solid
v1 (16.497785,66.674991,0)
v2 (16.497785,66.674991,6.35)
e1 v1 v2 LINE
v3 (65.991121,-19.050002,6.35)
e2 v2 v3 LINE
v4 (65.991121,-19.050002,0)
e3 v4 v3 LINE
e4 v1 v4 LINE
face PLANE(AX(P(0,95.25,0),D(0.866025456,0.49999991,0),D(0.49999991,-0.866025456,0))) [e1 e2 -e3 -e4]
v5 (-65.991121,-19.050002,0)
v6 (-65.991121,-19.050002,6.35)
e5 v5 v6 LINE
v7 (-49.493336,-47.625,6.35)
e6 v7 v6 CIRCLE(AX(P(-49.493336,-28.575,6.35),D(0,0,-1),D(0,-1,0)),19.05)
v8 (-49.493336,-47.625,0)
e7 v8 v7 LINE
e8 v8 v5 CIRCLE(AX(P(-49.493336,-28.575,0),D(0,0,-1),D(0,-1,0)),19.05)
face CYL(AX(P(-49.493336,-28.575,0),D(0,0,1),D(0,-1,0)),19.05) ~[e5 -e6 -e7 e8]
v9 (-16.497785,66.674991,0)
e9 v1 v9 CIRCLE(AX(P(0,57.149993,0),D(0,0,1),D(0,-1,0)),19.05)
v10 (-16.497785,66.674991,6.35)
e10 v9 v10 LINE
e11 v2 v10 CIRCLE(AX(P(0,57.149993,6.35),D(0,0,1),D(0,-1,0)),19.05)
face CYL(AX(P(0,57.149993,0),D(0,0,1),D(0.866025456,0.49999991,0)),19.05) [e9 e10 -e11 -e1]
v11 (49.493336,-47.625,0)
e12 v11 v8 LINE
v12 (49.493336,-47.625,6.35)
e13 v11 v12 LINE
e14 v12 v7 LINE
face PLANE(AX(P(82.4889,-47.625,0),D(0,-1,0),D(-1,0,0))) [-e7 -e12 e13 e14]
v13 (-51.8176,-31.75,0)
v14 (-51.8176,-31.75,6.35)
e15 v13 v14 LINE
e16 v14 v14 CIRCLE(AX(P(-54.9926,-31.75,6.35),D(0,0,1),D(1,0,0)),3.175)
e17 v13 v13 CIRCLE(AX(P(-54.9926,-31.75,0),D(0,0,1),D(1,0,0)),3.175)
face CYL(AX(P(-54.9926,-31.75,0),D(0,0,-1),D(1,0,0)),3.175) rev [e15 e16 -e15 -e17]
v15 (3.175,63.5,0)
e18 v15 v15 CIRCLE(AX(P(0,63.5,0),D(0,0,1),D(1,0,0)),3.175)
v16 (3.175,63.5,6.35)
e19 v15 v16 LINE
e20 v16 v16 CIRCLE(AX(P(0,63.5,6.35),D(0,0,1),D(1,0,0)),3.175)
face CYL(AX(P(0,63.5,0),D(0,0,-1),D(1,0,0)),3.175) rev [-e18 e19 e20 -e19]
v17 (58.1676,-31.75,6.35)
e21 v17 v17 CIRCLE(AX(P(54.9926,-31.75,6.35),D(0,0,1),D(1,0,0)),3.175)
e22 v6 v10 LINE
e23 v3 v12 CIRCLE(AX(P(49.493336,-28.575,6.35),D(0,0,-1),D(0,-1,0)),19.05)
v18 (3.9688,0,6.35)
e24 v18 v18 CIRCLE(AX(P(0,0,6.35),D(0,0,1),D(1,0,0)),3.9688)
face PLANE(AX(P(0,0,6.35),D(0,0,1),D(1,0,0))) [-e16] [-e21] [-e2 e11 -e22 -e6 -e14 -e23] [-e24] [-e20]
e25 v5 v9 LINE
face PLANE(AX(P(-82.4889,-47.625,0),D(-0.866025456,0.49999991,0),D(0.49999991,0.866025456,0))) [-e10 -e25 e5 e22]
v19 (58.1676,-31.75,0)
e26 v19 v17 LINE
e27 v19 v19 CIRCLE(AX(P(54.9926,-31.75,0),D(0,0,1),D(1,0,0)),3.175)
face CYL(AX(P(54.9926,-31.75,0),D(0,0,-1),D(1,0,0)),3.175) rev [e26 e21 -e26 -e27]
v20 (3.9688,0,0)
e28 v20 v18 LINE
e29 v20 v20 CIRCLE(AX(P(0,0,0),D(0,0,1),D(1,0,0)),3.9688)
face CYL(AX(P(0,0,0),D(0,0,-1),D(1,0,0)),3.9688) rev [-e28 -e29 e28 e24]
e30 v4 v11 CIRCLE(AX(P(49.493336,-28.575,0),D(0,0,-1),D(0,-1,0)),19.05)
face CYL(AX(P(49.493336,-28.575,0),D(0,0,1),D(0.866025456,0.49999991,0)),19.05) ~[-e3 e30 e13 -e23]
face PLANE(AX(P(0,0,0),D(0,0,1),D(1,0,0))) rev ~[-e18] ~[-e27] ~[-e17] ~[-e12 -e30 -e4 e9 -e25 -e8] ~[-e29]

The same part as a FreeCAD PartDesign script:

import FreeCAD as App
import Part
import Sketcher
from FreeCAD import Vector
Q = App.Units.Quantity


def edges_at(feature, points):
    """Names of the edges that pass closest to the given points."""
    edges = feature.Shape.Edges
    near = lambda p: min(range(len(edges)), key=lambda i: edges[i].distToShape(Part.Vertex(*p))[0])
    return sorted({f"Edge{near(p) + 1}" for p in points})


def add_polygon(sketch, points):
    """Adds a closed chain of lines whose ends are joined by coincident constraints."""
    first, n = sketch.GeometryCount, len(points)
    for a, b in zip(points, points[1:] + points[:1]):
        sketch.addGeometry(Part.LineSegment(App.Vector(*a, 0), App.Vector(*b, 0)), False)
    for i in range(n):
        sketch.addConstraint(Sketcher.Constraint("Coincident", first + i, 2, first + (i + 1) % n, 1))

doc = App.newDocument("Part")
body = doc.addObject("PartDesign::Body", "Body")

sketch1 = doc.addObject("Sketcher::SketchObject", "Sketch")
body.addObject(sketch1)
sketch1.AttachmentSupport = (doc.XY_Plane, [""])
sketch1.MapMode = "FlatFace"
add_polygon(sketch1, [(82.4889, -47.625), (0, 95.25), (-82.4889, -47.625)])
sketch1.addGeometry(Part.Circle(Vector(-54.9926, -31.75, 0), Vector(0, 0, 1), 3.175), False)
sketch1.addGeometry(Part.Circle(Vector(54.9926, -31.75, 0), Vector(0, 0, 1), 3.175), False)
sketch1.addGeometry(Part.Circle(Vector(0, 0, 0), Vector(0, 0, 1), 3.9688), False)
sketch1.addGeometry(Part.Circle(Vector(0, 63.5, 0), Vector(0, 0, 1), 3.175), False)
sketch1.addConstraint(Sketcher.Constraint("Horizontal", 2))
sketch1.addConstraint(Sketcher.Constraint("Coincident", 5, 3, -1, 1))
sketch1.addConstraint(Sketcher.Constraint("Equal", 3, 4))
sketch1.addConstraint(Sketcher.Constraint("Equal", 4, 6))
sketch1.addConstraint(Sketcher.Constraint("Symmetric", 3, 3, 4, 3, -2))
sketch1.addConstraint(Sketcher.Constraint("PointOnObject", 6, 3, -2))
sketch1.addConstraint(Sketcher.Constraint("PointOnObject", 0, 2, -2))
sketch1.addConstraint(Sketcher.Constraint("Equal", 0, 1))
sketch1.addConstraint(Sketcher.Constraint("Diameter", 3, Q("0.25 in")))
sketch1.addConstraint(Sketcher.Constraint("Diameter", 5, Q("0.3125 in")))
sketch1.addConstraint(Sketcher.Constraint("DistanceY", -1, 1, 6, 3, Q("2.5 in")))
sketch1.addConstraint(Sketcher.Constraint("Angle", 0, Q("120 deg")))
sketch1.addConstraint(Sketcher.Constraint("DistanceY", 3, 3, 0, 2, Q("5 in")))
sketch1.addConstraint(Sketcher.Constraint("DistanceY", 3, 3, -1, 1, Q("1.25 in")))
sketch1.addConstraint(Sketcher.Constraint("DistanceX", 2, 1, 2, 2, Q("6.4952 in")))
sketch1.addConstraint(Sketcher.Constraint("DistanceX", 3, 3, -1, 1, 54.9926))
pad1 = doc.addObject("PartDesign::Pad", "Pad")
body.addObject(pad1)
pad1.Profile = sketch1
pad1.Length = Q("0.25 in")
doc.recompute()

fillet = doc.addObject("PartDesign::Fillet", "Fillet")
body.addObject(fillet)
fillet.Base = (pad1, edges_at(pad1, [(0, 95.25, 3.175), (-82.489, -47.625, 3.175), (82.489, -47.625, 3.175)]))
fillet.Radius = Q("0.75 in")

doc.recompute()
